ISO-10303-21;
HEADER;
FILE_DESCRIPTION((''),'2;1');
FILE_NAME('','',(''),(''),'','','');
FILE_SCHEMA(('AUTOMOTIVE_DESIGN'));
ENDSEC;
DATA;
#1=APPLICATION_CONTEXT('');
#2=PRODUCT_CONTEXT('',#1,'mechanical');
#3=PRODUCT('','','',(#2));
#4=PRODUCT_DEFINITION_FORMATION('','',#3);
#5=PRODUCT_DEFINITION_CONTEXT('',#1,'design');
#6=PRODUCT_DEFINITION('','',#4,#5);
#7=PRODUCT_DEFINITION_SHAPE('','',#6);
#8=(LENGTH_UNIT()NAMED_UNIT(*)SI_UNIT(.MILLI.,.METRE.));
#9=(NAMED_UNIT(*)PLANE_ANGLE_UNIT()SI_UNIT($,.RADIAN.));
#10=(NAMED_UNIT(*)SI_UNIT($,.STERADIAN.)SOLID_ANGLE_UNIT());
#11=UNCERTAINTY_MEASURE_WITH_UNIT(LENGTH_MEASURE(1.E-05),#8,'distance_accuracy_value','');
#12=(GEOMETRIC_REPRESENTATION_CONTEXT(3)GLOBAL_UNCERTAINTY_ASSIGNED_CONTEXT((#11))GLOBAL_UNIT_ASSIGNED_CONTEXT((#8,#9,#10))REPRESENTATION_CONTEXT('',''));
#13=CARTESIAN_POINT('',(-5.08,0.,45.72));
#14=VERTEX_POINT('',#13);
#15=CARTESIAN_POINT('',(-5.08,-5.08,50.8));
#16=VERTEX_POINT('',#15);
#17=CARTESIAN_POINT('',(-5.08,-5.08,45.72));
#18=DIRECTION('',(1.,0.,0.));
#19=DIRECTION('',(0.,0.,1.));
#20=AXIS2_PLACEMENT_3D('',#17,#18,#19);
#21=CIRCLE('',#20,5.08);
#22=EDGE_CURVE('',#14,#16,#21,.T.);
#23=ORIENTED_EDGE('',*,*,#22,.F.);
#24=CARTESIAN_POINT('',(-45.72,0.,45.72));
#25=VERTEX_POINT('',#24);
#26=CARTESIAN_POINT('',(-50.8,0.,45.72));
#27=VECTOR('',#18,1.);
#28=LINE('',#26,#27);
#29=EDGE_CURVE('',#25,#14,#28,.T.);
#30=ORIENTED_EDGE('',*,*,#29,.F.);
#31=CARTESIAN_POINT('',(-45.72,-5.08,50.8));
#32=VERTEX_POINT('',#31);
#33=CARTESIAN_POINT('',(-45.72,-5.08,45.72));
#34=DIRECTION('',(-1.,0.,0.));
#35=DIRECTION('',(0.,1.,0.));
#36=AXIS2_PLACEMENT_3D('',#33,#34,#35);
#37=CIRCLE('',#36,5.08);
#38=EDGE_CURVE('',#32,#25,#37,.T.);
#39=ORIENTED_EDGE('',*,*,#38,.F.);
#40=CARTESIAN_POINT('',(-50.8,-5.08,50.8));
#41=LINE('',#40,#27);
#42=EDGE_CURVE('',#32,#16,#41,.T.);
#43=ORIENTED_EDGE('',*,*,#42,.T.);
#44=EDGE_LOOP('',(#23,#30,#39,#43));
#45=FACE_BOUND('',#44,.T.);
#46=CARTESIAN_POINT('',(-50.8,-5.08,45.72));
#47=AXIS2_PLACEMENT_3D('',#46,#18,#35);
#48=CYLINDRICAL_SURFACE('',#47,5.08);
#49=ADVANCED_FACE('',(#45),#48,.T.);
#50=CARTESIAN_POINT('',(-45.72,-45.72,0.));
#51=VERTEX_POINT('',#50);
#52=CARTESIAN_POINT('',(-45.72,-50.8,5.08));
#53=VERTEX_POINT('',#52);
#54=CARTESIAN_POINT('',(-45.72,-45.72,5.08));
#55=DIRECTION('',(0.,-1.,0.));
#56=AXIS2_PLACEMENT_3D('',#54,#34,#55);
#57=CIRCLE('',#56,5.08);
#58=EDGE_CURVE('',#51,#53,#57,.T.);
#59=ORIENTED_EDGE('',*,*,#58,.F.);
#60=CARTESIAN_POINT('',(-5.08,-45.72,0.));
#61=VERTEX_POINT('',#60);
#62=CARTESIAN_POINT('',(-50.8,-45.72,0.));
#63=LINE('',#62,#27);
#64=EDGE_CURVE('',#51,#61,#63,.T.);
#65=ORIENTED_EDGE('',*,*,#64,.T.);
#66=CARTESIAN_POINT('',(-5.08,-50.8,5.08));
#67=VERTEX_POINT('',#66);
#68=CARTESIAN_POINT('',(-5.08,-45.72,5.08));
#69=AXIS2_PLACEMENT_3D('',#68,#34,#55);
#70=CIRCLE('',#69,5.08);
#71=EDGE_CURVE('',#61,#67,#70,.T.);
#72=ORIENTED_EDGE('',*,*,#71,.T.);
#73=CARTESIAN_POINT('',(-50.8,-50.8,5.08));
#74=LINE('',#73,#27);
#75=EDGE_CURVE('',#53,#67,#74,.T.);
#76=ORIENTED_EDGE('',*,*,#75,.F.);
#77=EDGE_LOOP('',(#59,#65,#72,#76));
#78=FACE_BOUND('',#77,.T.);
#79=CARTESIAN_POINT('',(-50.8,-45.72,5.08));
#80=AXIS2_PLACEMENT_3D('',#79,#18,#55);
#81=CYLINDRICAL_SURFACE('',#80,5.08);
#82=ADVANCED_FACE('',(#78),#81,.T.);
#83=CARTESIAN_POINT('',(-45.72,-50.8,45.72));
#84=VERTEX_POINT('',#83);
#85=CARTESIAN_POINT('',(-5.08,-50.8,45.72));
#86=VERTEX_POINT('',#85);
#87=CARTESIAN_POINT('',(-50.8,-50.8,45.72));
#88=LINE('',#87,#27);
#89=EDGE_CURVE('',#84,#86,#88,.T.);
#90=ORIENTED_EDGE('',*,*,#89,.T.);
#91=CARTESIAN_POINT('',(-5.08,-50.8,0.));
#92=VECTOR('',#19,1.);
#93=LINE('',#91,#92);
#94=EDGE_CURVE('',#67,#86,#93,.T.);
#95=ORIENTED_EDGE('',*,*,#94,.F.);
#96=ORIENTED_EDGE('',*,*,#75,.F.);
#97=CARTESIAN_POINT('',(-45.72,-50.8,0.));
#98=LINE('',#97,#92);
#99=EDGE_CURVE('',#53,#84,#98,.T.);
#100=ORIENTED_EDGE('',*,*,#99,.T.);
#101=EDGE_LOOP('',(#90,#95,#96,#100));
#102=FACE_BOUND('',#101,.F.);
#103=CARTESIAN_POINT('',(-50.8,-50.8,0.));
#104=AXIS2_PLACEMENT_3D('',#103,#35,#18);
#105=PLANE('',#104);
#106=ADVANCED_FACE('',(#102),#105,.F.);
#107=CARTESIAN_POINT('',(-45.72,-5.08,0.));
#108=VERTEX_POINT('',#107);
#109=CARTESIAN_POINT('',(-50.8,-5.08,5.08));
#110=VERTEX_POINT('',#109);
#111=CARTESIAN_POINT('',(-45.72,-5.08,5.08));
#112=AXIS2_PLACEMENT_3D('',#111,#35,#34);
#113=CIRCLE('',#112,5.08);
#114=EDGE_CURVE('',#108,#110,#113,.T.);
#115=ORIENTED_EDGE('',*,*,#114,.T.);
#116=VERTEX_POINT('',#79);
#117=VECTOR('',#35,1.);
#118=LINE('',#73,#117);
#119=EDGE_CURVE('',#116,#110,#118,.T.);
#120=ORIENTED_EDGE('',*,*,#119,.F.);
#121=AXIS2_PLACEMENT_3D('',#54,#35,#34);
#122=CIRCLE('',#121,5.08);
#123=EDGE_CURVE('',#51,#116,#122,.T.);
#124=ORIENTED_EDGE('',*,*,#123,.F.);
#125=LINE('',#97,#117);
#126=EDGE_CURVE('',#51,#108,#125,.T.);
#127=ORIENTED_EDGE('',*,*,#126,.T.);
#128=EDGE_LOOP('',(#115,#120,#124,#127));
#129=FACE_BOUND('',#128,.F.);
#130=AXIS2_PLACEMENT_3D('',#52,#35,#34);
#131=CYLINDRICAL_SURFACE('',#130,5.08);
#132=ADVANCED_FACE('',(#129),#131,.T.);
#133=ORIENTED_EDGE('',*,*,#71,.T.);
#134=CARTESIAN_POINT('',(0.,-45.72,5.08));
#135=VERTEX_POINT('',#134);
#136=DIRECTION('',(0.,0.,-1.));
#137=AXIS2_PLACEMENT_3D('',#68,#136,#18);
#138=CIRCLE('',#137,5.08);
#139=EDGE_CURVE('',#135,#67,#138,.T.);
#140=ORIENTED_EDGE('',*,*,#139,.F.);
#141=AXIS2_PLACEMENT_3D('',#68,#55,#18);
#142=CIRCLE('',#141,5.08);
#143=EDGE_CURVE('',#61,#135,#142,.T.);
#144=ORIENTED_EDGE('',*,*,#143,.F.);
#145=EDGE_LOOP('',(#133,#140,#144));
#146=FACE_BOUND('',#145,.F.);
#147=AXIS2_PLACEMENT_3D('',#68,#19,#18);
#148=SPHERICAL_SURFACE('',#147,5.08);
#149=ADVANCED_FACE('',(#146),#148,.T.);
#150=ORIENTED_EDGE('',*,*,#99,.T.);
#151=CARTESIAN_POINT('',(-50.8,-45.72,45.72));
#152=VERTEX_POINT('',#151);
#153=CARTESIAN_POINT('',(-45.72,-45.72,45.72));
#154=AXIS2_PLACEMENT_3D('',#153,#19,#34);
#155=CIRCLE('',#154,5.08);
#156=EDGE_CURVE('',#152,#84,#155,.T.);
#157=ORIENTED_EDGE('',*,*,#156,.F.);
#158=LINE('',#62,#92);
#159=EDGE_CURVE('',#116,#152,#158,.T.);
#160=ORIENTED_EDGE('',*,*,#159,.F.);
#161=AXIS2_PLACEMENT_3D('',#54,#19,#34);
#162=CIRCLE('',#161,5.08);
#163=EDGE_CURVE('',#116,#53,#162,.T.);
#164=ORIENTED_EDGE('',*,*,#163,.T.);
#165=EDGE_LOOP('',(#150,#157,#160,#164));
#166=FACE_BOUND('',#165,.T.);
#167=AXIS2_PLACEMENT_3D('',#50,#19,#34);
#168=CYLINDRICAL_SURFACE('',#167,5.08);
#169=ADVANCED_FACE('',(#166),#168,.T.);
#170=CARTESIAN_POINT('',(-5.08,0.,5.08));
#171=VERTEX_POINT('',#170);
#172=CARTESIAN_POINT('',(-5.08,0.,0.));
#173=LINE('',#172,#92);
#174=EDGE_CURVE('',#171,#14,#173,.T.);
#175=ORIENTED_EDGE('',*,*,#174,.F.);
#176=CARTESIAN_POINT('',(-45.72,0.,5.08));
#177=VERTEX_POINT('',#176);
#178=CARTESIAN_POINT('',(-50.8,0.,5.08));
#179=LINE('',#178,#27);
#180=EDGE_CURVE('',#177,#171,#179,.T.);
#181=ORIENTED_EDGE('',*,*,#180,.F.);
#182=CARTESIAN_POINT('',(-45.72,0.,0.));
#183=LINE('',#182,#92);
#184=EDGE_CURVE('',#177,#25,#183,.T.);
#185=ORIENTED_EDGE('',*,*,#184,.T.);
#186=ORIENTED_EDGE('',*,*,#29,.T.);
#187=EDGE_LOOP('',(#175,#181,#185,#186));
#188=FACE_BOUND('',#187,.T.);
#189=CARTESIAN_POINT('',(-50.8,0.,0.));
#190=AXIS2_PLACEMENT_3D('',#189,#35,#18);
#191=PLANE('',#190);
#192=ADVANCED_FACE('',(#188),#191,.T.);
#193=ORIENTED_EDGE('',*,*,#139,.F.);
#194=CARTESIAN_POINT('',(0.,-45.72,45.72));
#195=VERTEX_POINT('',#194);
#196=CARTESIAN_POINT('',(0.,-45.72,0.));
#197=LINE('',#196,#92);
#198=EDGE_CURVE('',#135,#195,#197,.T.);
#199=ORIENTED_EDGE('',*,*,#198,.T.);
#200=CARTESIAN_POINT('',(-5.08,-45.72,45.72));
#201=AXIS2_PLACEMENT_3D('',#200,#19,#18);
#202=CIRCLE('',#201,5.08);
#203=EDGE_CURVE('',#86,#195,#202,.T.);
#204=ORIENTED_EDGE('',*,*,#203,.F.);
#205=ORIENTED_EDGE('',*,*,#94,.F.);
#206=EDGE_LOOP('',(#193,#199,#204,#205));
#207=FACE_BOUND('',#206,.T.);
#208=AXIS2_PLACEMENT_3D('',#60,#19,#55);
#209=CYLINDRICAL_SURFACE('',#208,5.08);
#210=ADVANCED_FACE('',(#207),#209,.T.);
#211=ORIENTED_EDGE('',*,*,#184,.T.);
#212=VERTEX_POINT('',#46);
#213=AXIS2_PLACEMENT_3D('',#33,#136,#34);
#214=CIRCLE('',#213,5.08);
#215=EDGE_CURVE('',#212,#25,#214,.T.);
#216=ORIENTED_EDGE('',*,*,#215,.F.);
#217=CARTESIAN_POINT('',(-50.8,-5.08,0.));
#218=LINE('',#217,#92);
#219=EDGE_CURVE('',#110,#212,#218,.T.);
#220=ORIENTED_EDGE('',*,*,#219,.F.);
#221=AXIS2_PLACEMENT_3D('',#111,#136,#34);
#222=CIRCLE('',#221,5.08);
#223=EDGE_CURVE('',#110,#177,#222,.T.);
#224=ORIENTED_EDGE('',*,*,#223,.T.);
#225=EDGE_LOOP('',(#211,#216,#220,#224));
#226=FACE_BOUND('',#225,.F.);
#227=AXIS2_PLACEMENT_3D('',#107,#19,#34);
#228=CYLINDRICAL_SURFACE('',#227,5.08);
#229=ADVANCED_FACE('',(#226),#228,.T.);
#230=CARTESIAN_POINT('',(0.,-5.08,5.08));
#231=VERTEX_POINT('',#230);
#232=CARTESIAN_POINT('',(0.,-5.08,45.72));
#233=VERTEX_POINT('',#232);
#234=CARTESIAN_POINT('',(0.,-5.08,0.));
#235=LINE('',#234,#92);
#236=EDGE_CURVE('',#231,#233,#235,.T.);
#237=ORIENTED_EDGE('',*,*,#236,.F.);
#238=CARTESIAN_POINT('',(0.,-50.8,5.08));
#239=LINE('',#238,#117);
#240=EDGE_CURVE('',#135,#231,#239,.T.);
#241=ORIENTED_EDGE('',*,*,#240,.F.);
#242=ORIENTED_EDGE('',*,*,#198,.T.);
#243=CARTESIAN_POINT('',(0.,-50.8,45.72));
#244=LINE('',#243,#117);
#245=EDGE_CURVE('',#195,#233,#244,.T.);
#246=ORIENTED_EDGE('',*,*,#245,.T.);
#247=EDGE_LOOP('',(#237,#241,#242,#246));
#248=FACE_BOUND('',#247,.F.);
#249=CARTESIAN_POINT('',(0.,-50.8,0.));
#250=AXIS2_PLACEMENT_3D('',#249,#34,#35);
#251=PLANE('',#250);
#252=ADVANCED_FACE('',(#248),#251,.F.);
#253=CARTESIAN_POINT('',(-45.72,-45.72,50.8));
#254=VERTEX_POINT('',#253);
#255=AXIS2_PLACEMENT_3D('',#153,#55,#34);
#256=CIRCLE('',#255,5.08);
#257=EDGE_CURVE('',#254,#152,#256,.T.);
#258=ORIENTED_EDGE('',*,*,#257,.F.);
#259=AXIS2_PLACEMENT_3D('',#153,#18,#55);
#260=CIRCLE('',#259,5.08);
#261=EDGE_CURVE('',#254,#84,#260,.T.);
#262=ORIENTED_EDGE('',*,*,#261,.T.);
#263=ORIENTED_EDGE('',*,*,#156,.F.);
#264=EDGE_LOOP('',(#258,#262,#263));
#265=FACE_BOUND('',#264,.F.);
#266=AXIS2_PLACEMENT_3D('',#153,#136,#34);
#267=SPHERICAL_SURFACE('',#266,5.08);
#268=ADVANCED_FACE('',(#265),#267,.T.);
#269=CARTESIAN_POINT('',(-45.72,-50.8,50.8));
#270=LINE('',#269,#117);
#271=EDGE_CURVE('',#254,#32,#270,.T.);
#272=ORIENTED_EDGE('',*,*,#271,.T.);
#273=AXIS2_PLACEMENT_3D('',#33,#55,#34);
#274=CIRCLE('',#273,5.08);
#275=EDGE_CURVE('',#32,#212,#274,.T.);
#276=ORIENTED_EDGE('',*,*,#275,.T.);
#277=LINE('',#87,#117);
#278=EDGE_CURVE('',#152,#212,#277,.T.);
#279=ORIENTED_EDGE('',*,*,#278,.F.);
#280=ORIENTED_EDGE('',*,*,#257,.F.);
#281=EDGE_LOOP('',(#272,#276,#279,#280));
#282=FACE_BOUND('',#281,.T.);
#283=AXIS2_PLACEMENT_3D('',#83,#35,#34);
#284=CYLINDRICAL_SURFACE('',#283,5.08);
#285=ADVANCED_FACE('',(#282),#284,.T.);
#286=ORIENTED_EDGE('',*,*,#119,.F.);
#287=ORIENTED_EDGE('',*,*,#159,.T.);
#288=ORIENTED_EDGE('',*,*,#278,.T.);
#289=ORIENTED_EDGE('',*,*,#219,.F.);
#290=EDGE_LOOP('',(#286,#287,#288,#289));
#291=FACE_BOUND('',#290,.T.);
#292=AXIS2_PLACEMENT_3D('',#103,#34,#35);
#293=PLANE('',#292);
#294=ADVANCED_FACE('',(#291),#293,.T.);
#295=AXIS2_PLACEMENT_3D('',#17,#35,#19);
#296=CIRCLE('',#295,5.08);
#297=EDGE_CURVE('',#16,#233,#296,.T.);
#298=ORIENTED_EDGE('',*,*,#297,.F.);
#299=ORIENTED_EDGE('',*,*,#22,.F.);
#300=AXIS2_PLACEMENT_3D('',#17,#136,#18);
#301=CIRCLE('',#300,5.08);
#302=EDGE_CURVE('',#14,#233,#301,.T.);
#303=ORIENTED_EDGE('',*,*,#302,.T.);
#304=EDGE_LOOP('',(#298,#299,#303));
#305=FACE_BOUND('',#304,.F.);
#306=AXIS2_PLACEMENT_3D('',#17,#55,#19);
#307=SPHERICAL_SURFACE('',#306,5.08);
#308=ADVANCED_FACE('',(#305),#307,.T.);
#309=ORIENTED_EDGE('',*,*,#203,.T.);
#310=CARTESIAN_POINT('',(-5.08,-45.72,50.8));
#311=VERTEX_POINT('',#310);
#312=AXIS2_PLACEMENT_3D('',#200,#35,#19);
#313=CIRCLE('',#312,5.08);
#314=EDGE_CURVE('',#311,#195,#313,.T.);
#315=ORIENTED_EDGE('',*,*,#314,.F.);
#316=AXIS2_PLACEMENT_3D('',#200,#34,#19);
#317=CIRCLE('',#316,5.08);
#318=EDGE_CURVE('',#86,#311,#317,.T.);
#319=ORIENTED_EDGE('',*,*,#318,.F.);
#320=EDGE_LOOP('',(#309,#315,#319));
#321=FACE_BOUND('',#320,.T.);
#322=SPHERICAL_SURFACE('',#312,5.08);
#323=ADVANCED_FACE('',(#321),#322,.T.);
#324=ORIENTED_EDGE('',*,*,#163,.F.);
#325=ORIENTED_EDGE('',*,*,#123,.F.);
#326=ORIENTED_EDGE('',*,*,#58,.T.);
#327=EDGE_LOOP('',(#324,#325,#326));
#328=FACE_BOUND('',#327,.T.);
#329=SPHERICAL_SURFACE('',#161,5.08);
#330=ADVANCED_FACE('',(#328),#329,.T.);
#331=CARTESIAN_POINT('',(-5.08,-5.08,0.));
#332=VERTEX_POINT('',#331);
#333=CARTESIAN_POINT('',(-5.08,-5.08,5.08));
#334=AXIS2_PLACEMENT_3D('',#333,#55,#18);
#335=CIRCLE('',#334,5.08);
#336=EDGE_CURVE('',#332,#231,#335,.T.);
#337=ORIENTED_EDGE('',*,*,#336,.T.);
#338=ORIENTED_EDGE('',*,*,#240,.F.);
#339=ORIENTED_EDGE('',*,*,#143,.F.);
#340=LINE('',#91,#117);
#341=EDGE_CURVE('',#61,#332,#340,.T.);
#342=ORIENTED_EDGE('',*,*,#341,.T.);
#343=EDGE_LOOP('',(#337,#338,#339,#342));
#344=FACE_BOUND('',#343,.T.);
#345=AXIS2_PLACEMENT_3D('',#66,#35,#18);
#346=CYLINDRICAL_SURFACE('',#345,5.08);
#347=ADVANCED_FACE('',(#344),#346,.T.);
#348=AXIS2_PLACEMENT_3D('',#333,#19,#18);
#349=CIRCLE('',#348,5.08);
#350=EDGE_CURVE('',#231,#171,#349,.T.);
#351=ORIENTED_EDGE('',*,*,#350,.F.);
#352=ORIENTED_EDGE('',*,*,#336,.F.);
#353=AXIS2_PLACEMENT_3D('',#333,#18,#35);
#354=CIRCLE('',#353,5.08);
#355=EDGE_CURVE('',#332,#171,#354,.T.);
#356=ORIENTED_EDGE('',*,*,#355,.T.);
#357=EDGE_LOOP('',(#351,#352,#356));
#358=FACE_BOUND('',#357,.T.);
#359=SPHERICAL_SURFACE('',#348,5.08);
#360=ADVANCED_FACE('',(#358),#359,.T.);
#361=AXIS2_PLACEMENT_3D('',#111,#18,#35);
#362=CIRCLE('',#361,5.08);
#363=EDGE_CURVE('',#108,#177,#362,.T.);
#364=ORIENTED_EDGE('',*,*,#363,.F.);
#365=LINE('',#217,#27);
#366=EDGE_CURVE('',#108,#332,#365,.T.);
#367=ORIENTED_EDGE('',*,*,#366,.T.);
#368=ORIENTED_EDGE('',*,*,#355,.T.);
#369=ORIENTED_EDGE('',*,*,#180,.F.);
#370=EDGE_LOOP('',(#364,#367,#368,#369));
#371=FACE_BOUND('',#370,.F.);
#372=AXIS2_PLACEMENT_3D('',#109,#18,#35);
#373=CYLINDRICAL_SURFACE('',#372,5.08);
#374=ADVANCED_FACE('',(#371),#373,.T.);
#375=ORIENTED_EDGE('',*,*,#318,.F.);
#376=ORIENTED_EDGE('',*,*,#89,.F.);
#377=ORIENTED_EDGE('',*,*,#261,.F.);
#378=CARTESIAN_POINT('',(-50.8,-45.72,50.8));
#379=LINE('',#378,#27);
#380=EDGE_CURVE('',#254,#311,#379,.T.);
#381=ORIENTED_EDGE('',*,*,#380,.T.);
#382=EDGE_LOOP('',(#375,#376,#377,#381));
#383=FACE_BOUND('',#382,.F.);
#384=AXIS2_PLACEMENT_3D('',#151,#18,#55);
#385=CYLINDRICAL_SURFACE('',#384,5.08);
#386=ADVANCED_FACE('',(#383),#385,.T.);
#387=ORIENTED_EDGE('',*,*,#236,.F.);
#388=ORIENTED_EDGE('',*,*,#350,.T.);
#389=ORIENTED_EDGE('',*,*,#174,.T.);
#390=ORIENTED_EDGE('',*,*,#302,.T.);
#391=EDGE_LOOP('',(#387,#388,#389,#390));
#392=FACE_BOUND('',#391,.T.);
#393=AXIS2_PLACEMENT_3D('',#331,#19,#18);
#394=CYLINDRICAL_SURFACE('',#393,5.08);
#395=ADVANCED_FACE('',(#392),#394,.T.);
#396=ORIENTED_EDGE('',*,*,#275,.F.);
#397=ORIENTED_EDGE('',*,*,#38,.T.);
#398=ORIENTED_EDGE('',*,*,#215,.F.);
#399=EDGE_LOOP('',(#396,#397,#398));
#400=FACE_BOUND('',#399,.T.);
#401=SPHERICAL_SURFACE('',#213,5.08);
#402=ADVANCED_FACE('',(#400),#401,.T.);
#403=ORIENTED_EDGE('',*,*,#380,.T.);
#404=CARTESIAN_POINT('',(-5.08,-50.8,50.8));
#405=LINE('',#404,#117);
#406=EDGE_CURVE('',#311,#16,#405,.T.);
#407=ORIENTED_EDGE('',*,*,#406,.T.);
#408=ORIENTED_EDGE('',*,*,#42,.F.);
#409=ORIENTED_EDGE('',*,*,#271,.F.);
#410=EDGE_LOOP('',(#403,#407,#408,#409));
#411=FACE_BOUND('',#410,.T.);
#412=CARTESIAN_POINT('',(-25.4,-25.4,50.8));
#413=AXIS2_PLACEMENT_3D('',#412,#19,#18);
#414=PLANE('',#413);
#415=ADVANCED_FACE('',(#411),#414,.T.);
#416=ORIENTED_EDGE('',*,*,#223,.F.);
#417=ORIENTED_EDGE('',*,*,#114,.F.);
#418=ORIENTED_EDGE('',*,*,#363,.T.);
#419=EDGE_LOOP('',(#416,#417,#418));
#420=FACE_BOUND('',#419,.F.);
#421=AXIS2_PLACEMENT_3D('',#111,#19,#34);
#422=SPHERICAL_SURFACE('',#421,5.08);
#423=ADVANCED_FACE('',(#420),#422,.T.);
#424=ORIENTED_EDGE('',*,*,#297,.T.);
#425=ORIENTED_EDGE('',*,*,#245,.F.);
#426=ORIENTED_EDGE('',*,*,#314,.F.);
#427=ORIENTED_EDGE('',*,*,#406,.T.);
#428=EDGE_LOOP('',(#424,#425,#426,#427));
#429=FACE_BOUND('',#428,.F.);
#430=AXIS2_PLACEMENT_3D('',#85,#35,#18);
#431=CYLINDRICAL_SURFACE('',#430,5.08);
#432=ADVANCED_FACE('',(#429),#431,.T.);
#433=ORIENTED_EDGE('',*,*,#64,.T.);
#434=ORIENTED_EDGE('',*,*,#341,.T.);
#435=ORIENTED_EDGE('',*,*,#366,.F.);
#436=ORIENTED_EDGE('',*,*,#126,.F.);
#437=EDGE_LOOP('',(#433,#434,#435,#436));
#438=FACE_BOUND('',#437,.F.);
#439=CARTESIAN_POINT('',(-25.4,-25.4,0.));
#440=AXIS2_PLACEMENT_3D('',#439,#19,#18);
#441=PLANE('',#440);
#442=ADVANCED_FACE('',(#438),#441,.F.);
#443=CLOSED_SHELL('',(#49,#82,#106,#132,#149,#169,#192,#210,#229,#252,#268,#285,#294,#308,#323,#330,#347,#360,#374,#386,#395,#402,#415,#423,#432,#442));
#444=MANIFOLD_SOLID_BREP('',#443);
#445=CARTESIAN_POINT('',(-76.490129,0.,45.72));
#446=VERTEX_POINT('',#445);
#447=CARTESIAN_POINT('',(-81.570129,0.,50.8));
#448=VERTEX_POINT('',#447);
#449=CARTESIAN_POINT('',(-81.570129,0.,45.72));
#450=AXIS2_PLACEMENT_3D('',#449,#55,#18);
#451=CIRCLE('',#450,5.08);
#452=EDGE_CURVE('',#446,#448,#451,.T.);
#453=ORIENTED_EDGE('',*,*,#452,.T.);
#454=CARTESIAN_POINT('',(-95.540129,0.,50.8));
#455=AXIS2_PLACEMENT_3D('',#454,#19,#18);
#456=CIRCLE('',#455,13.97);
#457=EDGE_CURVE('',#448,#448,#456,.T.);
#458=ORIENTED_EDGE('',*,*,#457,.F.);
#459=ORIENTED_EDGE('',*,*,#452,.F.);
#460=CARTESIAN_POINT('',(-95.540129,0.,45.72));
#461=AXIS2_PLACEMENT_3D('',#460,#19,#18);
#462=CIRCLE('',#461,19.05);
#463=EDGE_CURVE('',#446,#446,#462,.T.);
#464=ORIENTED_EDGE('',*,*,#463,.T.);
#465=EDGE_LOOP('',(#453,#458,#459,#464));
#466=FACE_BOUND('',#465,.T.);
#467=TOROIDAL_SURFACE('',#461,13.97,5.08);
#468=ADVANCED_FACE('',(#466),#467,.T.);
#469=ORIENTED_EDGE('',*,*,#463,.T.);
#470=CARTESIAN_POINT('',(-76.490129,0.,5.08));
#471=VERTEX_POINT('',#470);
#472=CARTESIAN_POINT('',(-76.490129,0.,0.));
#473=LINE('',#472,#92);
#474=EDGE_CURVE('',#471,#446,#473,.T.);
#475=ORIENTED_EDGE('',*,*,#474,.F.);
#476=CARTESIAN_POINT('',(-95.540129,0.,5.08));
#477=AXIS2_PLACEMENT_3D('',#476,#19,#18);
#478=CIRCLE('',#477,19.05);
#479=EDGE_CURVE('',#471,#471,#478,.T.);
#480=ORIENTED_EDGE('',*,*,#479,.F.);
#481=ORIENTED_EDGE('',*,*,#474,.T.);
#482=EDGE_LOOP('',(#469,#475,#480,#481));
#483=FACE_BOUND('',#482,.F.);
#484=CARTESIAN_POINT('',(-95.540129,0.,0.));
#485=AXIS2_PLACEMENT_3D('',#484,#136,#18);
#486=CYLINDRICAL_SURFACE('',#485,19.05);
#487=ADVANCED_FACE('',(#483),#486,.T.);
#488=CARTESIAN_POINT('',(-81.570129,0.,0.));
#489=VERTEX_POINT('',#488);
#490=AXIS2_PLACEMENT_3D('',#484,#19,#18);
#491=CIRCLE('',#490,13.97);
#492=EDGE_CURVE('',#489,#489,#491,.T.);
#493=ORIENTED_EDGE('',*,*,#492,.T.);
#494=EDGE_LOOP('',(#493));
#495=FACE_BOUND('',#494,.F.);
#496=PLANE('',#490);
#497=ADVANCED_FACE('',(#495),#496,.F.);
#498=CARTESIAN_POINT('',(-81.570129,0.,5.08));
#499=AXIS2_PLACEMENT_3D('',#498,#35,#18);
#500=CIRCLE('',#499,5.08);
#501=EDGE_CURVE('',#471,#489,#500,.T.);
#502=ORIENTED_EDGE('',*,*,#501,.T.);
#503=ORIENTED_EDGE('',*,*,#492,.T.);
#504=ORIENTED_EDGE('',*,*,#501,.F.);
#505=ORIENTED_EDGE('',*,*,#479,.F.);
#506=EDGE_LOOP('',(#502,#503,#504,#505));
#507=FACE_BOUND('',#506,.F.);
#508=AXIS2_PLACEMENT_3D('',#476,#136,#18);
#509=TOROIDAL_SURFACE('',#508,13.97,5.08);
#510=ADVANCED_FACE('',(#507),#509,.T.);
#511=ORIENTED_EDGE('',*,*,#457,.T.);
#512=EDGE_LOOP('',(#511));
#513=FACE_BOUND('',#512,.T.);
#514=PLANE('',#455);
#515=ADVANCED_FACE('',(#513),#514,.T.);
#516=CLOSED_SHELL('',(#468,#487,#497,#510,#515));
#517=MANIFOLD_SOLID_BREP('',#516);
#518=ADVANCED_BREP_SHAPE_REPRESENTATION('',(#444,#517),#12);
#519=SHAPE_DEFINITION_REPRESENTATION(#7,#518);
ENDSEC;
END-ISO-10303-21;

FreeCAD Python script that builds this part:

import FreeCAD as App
import Part
import Sketcher
Q = App.Units.Quantity

doc = App.newDocument("Part")
body = doc.addObject("PartDesign::Body", "Body")
body.AllowCompound = True

# Sketch on XY plane
sketch1 = body.newObject("Sketcher::SketchObject", "Sketch")
sketch1.AttachmentSupport = (doc.getObject("XY_Plane"), [""])
sketch1.MapMode = "FlatFace"
sketch1.addGeometry([
    Part.LineSegment(App.Vector(-51, 0, 0), App.Vector(-51, -51, 0)),  # 0
    Part.LineSegment(App.Vector(-51, -51, 0), App.Vector(0, -51, 0)),  # 1
    Part.LineSegment(App.Vector(0, -51, 0), App.Vector(0, 0, 0)),  # 2
    Part.LineSegment(App.Vector(0, 0, 0), App.Vector(-51, 0, 0)),  # 3
    Part.Circle(App.Vector(-96, 0, 0), App.Vector(0, 0, 1), 19),  # 4
], False)
sketch1.addConstraint([
    Sketcher.Constraint("Coincident", 0, 2, 1, 1),
    Sketcher.Constraint("Coincident", 1, 2, 2, 1),
    Sketcher.Constraint("Coincident", 2, 2, 3, 1),
    Sketcher.Constraint("Coincident", 3, 2, 0, 1),
    Sketcher.Constraint("Vertical", 0),
    Sketcher.Constraint("Horizontal", 1),
    Sketcher.Constraint("Vertical", 2),
    Sketcher.Constraint("Horizontal", 3),
    Sketcher.Constraint("Coincident", 2, 2, -1, 1),
    Sketcher.Constraint("PointOnObject", 4, 3, -1),
    Sketcher.Constraint("Equal", 3, 0),
    Sketcher.Constraint("Diameter", 4, Q("1.5 in")),
    Sketcher.Constraint("DistanceX", 1, 1, 1, 2, Q("2 in")),
    Sketcher.Constraint("DistanceX", 4, 3, -1, 1, Q("95.540129 mm")),
])
pad1 = body.newObject("PartDesign::Pad", "Pad")
pad1.Profile = sketch1
pad1.Length = Q("2 in")
doc.recompute()

fillet = body.newObject("PartDesign::Fillet", "Fillet")
fillet.Base = (pad1, ["Edge1"])
fillet.UseAllEdges = True
fillet.Radius = Q("0.2 in")

doc.recompute()
